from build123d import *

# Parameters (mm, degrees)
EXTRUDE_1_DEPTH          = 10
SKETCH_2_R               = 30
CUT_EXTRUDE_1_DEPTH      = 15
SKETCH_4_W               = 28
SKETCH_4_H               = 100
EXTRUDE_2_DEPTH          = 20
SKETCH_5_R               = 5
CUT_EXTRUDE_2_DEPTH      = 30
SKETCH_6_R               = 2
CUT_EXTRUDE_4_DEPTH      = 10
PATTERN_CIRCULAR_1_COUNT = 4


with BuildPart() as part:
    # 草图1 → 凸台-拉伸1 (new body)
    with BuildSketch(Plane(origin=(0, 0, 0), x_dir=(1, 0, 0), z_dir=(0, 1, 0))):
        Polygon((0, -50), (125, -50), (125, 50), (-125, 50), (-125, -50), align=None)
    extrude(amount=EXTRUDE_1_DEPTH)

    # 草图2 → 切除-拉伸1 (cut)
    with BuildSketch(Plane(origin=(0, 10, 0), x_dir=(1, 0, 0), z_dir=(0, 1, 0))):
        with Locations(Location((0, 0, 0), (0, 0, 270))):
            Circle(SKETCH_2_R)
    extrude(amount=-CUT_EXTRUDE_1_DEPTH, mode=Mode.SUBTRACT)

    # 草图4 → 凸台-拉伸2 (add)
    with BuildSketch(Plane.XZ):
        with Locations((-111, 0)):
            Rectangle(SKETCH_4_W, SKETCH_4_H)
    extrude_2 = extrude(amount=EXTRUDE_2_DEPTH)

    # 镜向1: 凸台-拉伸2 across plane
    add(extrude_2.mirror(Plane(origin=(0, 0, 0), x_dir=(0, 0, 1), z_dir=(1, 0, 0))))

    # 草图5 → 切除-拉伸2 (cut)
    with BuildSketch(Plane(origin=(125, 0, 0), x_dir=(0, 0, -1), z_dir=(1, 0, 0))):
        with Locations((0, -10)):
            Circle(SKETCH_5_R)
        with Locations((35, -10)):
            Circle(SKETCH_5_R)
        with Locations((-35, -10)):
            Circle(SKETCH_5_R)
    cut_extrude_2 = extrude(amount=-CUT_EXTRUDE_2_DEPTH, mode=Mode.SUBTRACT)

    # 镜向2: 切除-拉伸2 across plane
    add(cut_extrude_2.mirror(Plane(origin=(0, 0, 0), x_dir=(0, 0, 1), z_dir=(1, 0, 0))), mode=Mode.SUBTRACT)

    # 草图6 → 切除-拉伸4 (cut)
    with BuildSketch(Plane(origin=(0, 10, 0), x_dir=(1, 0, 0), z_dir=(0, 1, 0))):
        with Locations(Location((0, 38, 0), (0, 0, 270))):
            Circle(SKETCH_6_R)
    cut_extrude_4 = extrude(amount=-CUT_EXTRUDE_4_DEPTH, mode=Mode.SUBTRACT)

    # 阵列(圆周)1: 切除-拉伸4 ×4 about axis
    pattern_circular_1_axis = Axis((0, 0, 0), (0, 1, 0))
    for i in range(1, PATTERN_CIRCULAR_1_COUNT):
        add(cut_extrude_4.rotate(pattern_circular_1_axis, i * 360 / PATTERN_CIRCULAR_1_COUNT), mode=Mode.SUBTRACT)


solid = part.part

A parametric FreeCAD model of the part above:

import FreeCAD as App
import Part
import Sketcher
from FreeCAD import Vector
Q = App.Units.Quantity

doc = App.newDocument("Part")
params = doc.addObject("Spreadsheet::Sheet", "Params")
for row, (alias, value) in enumerate([
    ("sketch1_width", "250 mm"),
    ("sketch1_height", "100 mm"),
    ("pad1_length", "10 mm"),
    ("sketch2_diameter", "60 mm"),
    ("pocket1_length", "15 mm"),
    ("sketch3_width", "28 mm"),
    ("sketch3_height", "100 mm"),
    ("pad2_length", "20 mm"),
    ("sketch4_diameter", "10 mm"),
    ("pocket2_length", "30 mm"),
    ("sketch5_diameter", "4 mm"),
    ("pocket3_length", "10 mm"),
], start=1):
    params.set(f"A{row}", alias)
    params.set(f"B{row}", "=" + value)
    params.setAlias(f"B{row}", alias)

body = doc.addObject("PartDesign::Body", "Body")

# Sketch on XZ plane
sketch1 = body.newObject("Sketcher::SketchObject", "Sketch")
sketch1.AttachmentSupport = (doc.getObject("XZ_Plane"), [""])
sketch1.MapMode = "FlatFace"
sketch1.addGeometry([
    Part.LineSegment(Vector(125, 50, 0), Vector(125, -50, 0)),
    Part.LineSegment(Vector(125, -50, 0), Vector(-125, -50, 0)),
    Part.LineSegment(Vector(-125, -50, 0), Vector(-125, 50, 0)),
    Part.LineSegment(Vector(-125, 50, 0), Vector(125, 50, 0)),
], False)
sketch1.addConstraint([
    Sketcher.Constraint("Coincident", 0, 2, 1, 1),
    Sketcher.Constraint("Coincident", 1, 2, 2, 1),
    Sketcher.Constraint("Coincident", 2, 2, 3, 1),
    Sketcher.Constraint("Coincident", 3, 2, 0, 1),
    Sketcher.Constraint("Vertical", 0),
    Sketcher.Constraint("Horizontal", 1),
    Sketcher.Constraint("Vertical", 2),
    Sketcher.Constraint("Horizontal", 3),
    Sketcher.Constraint("Symmetric", 0, 2, 2, 2, -1, 1),
    Sketcher.Constraint("DistanceX", 1, 2, 1, 1, Q("250 mm")),
    Sketcher.Constraint("DistanceY", 0, 2, 0, 1, Q("100 mm")),
])
sketch1.setExpression("Constraints[9]", "Params.sketch1_width")
sketch1.setExpression("Constraints[10]", "Params.sketch1_height")
pad1 = body.newObject("PartDesign::Pad", "Pad")
pad1.Profile = sketch1
pad1.setExpression("Length", "Params.pad1_length")
pad1.Reversed = True

# Sketch on XZ plane
sketch2 = body.newObject("Sketcher::SketchObject", "Sketch001")
sketch2.AttachmentSupport = (doc.getObject("XZ_Plane"), [""])
sketch2.MapMode = "FlatFace"
sketch2.AttachmentOffset = App.Placement(Vector(0, 0, -10), App.Rotation())
sketch2.addGeometry(Part.Circle(Vector(0, 0, 0), Vector(0, 0, 1), 30), False)
sketch2.addConstraint([
    Sketcher.Constraint("Coincident", 0, 3, -1, 1),
    Sketcher.Constraint("Diameter", 0, Q("60 mm")),
])
sketch2.setExpression("Constraints[1]", "Params.sketch2_diameter")
pocket1 = body.newObject("PartDesign::Pocket", "Pocket")
pocket1.Profile = sketch2
pocket1.setExpression("Length", "Params.pocket1_length")
pocket1.Reversed = True

# Sketch on XZ plane
sketch3 = body.newObject("Sketcher::SketchObject", "Sketch002")
sketch3.AttachmentSupport = (doc.getObject("XZ_Plane"), [""])
sketch3.MapMode = "FlatFace"
sketch3.addGeometry([
    Part.LineSegment(Vector(-125, 50, 0), Vector(-125, -50, 0)),
    Part.LineSegment(Vector(-125, -50, 0), Vector(-97, -50, 0)),
    Part.LineSegment(Vector(-97, -50, 0), Vector(-97, 50, 0)),
    Part.LineSegment(Vector(-97, 50, 0), Vector(-125, 50, 0)),
], False)
sketch3.addConstraint([
    Sketcher.Constraint("Coincident", 0, 2, 1, 1),
    Sketcher.Constraint("Coincident", 1, 2, 2, 1),
    Sketcher.Constraint("Coincident", 2, 2, 3, 1),
    Sketcher.Constraint("Coincident", 3, 2, 0, 1),
    Sketcher.Constraint("Vertical", 0),
    Sketcher.Constraint("Horizontal", 1),
    Sketcher.Constraint("Vertical", 2),
    Sketcher.Constraint("Horizontal", 3),
    Sketcher.Constraint("DistanceX", 1, 1, 1, 2, Q("28 mm")),
    Sketcher.Constraint("DistanceY", 0, 2, 0, 1, Q("100 mm")),
    Sketcher.Constraint("DistanceX", 0, 2, -1, 1, Q("125 mm")),
    Sketcher.Constraint("DistanceY", 0, 2, -1, 1, Q("50 mm")),
])
sketch3.setExpression("Constraints[8]", "Params.sketch3_width")
sketch3.setExpression("Constraints[9]", "Params.sketch3_height")
pad2 = body.newObject("PartDesign::Pad", "Pad001")
pad2.Profile = sketch3
pad2.setExpression("Length", "Params.pad2_length")
doc.recompute()

mirrored = body.newObject("PartDesign::Mirrored", "Mirrored")
mirrored.Originals = [pad2]
mirrored.MirrorPlane = (doc.getObject("YZ_Plane"), [""])
body.Tip = mirrored

# Sketch on YZ plane
sketch4 = body.newObject("Sketcher::SketchObject", "Sketch003")
sketch4.AttachmentSupport = (doc.getObject("YZ_Plane"), [""])
sketch4.MapMode = "FlatFace"
sketch4.AttachmentOffset = App.Placement(Vector(0, 0, 125), App.Rotation())
sketch4.addGeometry([
    Part.Circle(Vector(-10, 0, 0), Vector(0, 0, 1), 5),
    Part.Circle(Vector(-10, -35, 0), Vector(0, 0, 1), 5),
    Part.Circle(Vector(-10, 35, 0), Vector(0, 0, 1), 5),
], False)
sketch4.addConstraint([
    Sketcher.Constraint("Equal", 0, 1),
    Sketcher.Constraint("Equal", 1, 2),
    Sketcher.Constraint("Symmetric", 1, 3, 2, 3, -1),
    Sketcher.Constraint("PointOnObject", 0, 3, -1),
    Sketcher.Constraint("Vertical", 0, 3, 1, 3),
    Sketcher.Constraint("Diameter", 0, Q("10 mm")),
    Sketcher.Constraint("DistanceX", 0, 3, -1, 1, Q("10 mm")),
    Sketcher.Constraint("DistanceY", 1, 3, -1, 1, Q("35 mm")),
])
sketch4.setExpression("Constraints[5]", "Params.sketch4_diameter")
pocket2 = body.newObject("PartDesign::Pocket", "Pocket001")
pocket2.Profile = sketch4
pocket2.setExpression("Length", "Params.pocket2_length")
doc.recompute()

mirrored2 = body.newObject("PartDesign::Mirrored", "Mirrored001")
mirrored2.Originals = [pocket2]
mirrored2.MirrorPlane = (doc.getObject("YZ_Plane"), [""])
body.Tip = mirrored2

# Sketch on XZ plane
sketch5 = body.newObject("Sketcher::SketchObject", "Sketch004")
sketch5.AttachmentSupport = (doc.getObject("XZ_Plane"), [""])
sketch5.MapMode = "FlatFace"
sketch5.AttachmentOffset = App.Placement(Vector(0, 0, -10), App.Rotation())
sketch5.addGeometry(Part.Circle(Vector(0, -38, 0), Vector(0, 0, 1), 2), False)
sketch5.addConstraint([
    Sketcher.Constraint("PointOnObject", 0, 3, -2),
    Sketcher.Constraint("Diameter", 0, Q("4 mm")),
    Sketcher.Constraint("DistanceY", 0, 3, -1, 1, Q("38 mm")),
])
sketch5.setExpression("Constraints[1]", "Params.sketch5_diameter")
pocket3 = body.newObject("PartDesign::Pocket", "Pocket002")
pocket3.Profile = sketch5
pocket3.setExpression("Length", "Params.pocket3_length")
pocket3.Reversed = True
doc.recompute()

polarpattern = body.newObject("PartDesign::PolarPattern", "PolarPattern")
polarpattern.Originals = [pocket3]
polarpattern.Axis = (doc.getObject("Y_Axis"), [""])
polarpattern.Angle = 360
polarpattern.Occurrences = 4
body.Tip = polarpattern

doc.recompute()
